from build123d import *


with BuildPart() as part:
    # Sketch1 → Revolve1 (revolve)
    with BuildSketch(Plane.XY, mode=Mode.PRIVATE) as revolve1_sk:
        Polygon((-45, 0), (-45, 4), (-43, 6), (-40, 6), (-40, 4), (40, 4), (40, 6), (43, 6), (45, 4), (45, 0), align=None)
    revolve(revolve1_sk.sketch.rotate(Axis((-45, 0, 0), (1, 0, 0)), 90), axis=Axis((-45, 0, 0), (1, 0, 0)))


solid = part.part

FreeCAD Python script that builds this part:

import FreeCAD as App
import Part
import Sketcher
Q = App.Units.Quantity

doc = App.newDocument("Part")
body = doc.addObject("PartDesign::Body", "Body")

# Sketch on XY plane
sketch1 = body.newObject("Sketcher::SketchObject", "Sketch")
sketch1.AttachmentSupport = (doc.getObject("XY_Plane"), [""])
sketch1.MapMode = "FlatFace"
sketch1.addGeometry(Part.LineSegment(App.Vector(-45, 4, 0), App.Vector(-45, 0, 0)), False)
sketch1.addGeometry(Part.LineSegment(App.Vector(-45, 0, 0), App.Vector(45, 0, 0)), False)
sketch1.addGeometry(Part.LineSegment(App.Vector(45, 0, 0), App.Vector(45, 4, 0)), False)
sketch1.addGeometry(Part.LineSegment(App.Vector(45, 4, 0), App.Vector(43, 6, 0)), False)
sketch1.addGeometry(Part.LineSegment(App.Vector(43, 6, 0), App.Vector(40, 6, 0)), False)
sketch1.addGeometry(Part.LineSegment(App.Vector(40, 6, 0), App.Vector(40, 4, 0)), False)
sketch1.addGeometry(Part.LineSegment(App.Vector(40, 4, 0), App.Vector(-40, 4, 0)), False)
sketch1.addGeometry(Part.LineSegment(App.Vector(-40, 4, 0), App.Vector(-40, 6, 0)), False)
sketch1.addGeometry(Part.LineSegment(App.Vector(-40, 6, 0), App.Vector(-43, 6, 0)), False)
sketch1.addGeometry(Part.LineSegment(App.Vector(-43, 6, 0), App.Vector(-45, 4, 0)), False)
sketch1.addConstraint(Sketcher.Constraint("Coincident", 0, 2, 1, 1))
sketch1.addConstraint(Sketcher.Constraint("Coincident", 1, 2, 2, 1))
sketch1.addConstraint(Sketcher.Constraint("Coincident", 2, 2, 3, 1))
sketch1.addConstraint(Sketcher.Constraint("Coincident", 3, 2, 4, 1))
sketch1.addConstraint(Sketcher.Constraint("Coincident", 4, 2, 5, 1))
sketch1.addConstraint(Sketcher.Constraint("Coincident", 5, 2, 6, 1))
sketch1.addConstraint(Sketcher.Constraint("Coincident", 6, 2, 7, 1))
sketch1.addConstraint(Sketcher.Constraint("Coincident", 7, 2, 8, 1))
sketch1.addConstraint(Sketcher.Constraint("Coincident", 8, 2, 9, 1))
sketch1.addConstraint(Sketcher.Constraint("Coincident", 9, 2, 0, 1))
sketch1.addConstraint(Sketcher.Constraint("Vertical", 0))
sketch1.addConstraint(Sketcher.Constraint("Horizontal", 1))
sketch1.addConstraint(Sketcher.Constraint("Vertical", 2))
sketch1.addConstraint(Sketcher.Constraint("Horizontal", 4))
sketch1.addConstraint(Sketcher.Constraint("Vertical", 5))
sketch1.addConstraint(Sketcher.Constraint("Horizontal", 6))
sketch1.addConstraint(Sketcher.Constraint("Vertical", 7))
sketch1.addConstraint(Sketcher.Constraint("Horizontal", 8))
sketch1.addConstraint(Sketcher.Constraint("Symmetric", 0, 2, 1, 2, -1, 1))
sketch1.addConstraint(Sketcher.Constraint("Symmetric", 4, 2, 7, 2, -2))
sketch1.addConstraint(Sketcher.Constraint("Perpendicular", 3, 9))
sketch1.addConstraint(Sketcher.Constraint("Horizontal", 2, 2, 5, 2))
sketch1.addConstraint(Sketcher.Constraint("Horizontal", 6, 2, 9, 2))
sketch1.addConstraint(Sketcher.Constraint("Equal", 4, 8))
sketch1.addConstraint(Sketcher.Constraint("DistanceX", 1, 1, 1, 2, Q("90 mm")))
sketch1.addConstraint(Sketcher.Constraint("DistanceX", 4, 2, 4, 1, Q("3 mm")))
sketch1.addConstraint(Sketcher.Constraint("DistanceX", 6, 2, 6, 1, Q("80 mm")))
sketch1.addConstraint(Sketcher.Constraint("DistanceY", 0, 2, 0, 1, Q("4 mm")))
revolution = body.newObject("PartDesign::Revolution", "Revolution")
revolution.Profile = sketch1
revolution.ReferenceAxis = (sketch1, ["H_Axis"])
revolution.Angle = 360

doc.recompute()
